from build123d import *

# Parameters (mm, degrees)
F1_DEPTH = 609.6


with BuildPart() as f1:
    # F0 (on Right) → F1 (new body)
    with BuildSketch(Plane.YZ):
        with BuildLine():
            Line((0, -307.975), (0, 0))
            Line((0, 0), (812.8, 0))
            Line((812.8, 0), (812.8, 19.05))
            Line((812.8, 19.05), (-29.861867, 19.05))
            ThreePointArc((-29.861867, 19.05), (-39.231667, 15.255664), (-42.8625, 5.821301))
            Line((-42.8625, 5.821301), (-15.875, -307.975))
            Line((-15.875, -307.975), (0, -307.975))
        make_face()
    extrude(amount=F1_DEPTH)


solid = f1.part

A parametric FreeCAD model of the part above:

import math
import FreeCAD as App
import Part
import Sketcher
from FreeCAD import Vector
Q = App.Units.Quantity

doc = App.newDocument("Part")
body = doc.addObject("PartDesign::Body", "Body")

# Sketch on YZ plane
sketch1 = body.newObject("Sketcher::SketchObject", "Sketch")
sketch1.AttachmentSupport = (doc.getObject("YZ_Plane"), [""])
sketch1.MapMode = "FlatFace"
sketch1.addGeometry(Part.LineSegment(Vector(0, -307.975, 0), Vector(0, 0, 0)), False)
sketch1.addGeometry(Part.LineSegment(Vector(0, 0, 0), Vector(812.8, 0, 0)), False)
sketch1.addGeometry(Part.LineSegment(Vector(812.8, 0, 0), Vector(812.8, 19.05, 0)), False)
sketch1.addGeometry(Part.LineSegment(Vector(812.8, 19.05, 0), Vector(-29.861867, 19.05, 0)), False)
sketch1.addGeometry(Part.ArcOfCircle(Part.Circle(Vector(-30.173669, 6.353828, 0), Vector(0, 0, 1), 12.7), math.radians(88.593169), math.radians(182.403188)), False)
sketch1.addGeometry(Part.LineSegment(Vector(-42.8625, 5.821301, 0), Vector(-15.875, -307.975, 0)), False)
sketch1.addGeometry(Part.LineSegment(Vector(-15.875, -307.975, 0), Vector(0, -307.975, 0)), False)
sketch1.addConstraint(Sketcher.Constraint("Coincident", 0, 2, 1, 1))
sketch1.addConstraint(Sketcher.Constraint("Coincident", 1, 2, 2, 1))
sketch1.addConstraint(Sketcher.Constraint("Coincident", 2, 2, 3, 1))
sketch1.addConstraint(Sketcher.Constraint("Coincident", 3, 2, 4, 1))
sketch1.addConstraint(Sketcher.Constraint("Coincident", 4, 2, 5, 1))
sketch1.addConstraint(Sketcher.Constraint("Coincident", 5, 2, 6, 1))
sketch1.addConstraint(Sketcher.Constraint("Coincident", 6, 2, 0, 1))
sketch1.addConstraint(Sketcher.Constraint("Vertical", 0))
sketch1.addConstraint(Sketcher.Constraint("Horizontal", 1))
sketch1.addConstraint(Sketcher.Constraint("Vertical", 2))
sketch1.addConstraint(Sketcher.Constraint("Horizontal", 3))
sketch1.addConstraint(Sketcher.Constraint("Horizontal", 6))
sketch1.addConstraint(Sketcher.Constraint("Coincident", 0, 2, -1, 1))
sketch1.addConstraint(Sketcher.Constraint("Radius", 4, Q("0.5 in")))
sketch1.addConstraint(Sketcher.Constraint("DistanceX", 1, 1, 1, 2, Q("32 in")))
sketch1.addConstraint(Sketcher.Constraint("DistanceY", 2, 1, 2, 2, Q("0.75 in")))
sketch1.addConstraint(Sketcher.Constraint("DistanceX", 6, 1, 6, 2, Q("0.625 in")))
sketch1.addConstraint(Sketcher.Constraint("DistanceY", 0, 1, 0, 2, Q("12.125 in")))
sketch1.addConstraint(Sketcher.Constraint("DistanceX", 4, 2, -1, 1, Q("1.6875 in")))
sketch1.addConstraint(Sketcher.Constraint("DistanceY", -1, 1, 4, 2, 5.821301))
sketch1.addConstraint(Sketcher.Constraint("DistanceX", 3, 2, 3, 1, 842.661867))
pad1 = body.newObject("PartDesign::Pad", "Pad")
pad1.Profile = sketch1
pad1.Length = Q("24 in")

doc.recompute()
